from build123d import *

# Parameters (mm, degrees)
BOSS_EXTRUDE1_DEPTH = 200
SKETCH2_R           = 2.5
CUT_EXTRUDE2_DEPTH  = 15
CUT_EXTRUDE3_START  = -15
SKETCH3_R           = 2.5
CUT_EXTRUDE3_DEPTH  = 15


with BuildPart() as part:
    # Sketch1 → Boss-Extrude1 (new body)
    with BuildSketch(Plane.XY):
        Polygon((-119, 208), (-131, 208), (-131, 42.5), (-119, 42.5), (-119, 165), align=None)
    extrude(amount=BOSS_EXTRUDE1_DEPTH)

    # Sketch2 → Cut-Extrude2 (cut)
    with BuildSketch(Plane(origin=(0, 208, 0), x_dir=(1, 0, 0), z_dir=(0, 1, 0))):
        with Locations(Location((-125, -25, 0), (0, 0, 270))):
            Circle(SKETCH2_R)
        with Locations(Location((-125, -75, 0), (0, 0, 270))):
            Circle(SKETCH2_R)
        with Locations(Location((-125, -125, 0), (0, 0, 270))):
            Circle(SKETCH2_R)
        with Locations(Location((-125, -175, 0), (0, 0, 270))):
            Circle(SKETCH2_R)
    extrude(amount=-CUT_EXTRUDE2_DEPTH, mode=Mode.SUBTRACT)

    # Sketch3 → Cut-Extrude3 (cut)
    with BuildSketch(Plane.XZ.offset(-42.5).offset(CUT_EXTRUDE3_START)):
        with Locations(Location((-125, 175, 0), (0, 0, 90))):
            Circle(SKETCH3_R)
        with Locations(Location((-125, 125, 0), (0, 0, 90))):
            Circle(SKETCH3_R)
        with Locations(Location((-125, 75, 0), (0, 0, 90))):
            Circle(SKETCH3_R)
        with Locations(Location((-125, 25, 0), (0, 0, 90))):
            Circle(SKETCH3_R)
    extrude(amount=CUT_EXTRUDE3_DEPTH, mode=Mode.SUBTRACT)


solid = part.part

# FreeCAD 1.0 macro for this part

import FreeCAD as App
import Part
import Sketcher
from FreeCAD import Vector
Q = App.Units.Quantity


def add_polygon(sketch, points):
    """Adds a closed chain of lines whose ends are joined by coincident constraints."""
    first, n = sketch.GeometryCount, len(points)
    for a, b in zip(points, points[1:] + points[:1]):
        sketch.addGeometry(Part.LineSegment(App.Vector(*a, 0), App.Vector(*b, 0)), False)
    for i in range(n):
        sketch.addConstraint(Sketcher.Constraint("Coincident", first + i, 2, first + (i + 1) % n, 1))

doc = App.newDocument("Part")
body = doc.addObject("PartDesign::Body", "Body")

# Sketch on XY plane
sketch1 = body.newObject("Sketcher::SketchObject", "Sketch")
sketch1.AttachmentSupport = (doc.getObject("XY_Plane"), [""])
sketch1.MapMode = "FlatFace"
add_polygon(sketch1, [(-119, 208), (-131, 208), (-131, 42.5), (-119, 42.5)])  # lines 0-3
sketch1.addConstraint(Sketcher.Constraint("Horizontal", 0))
sketch1.addConstraint(Sketcher.Constraint("Vertical", 1))
sketch1.addConstraint(Sketcher.Constraint("Horizontal", 2))
sketch1.addConstraint(Sketcher.Constraint("Vertical", 3))
sketch1.addConstraint(Sketcher.Constraint("DistanceX", 0, 2, 0, 1, Q("12 mm")))
sketch1.addConstraint(Sketcher.Constraint("DistanceY", 1, 2, 1, 1, Q("165.5 mm")))
sketch1.addConstraint(Sketcher.Constraint("DistanceX", 0, 2, -1, 1, Q("131 mm")))
sketch1.addConstraint(Sketcher.Constraint("DistanceY", -1, 1, 0, 2, Q("208 mm")))
pad1 = body.newObject("PartDesign::Pad", "Pad")
pad1.Profile = sketch1
pad1.Length = 200

# Sketch on XZ plane
sketch2 = body.newObject("Sketcher::SketchObject", "Sketch001")
sketch2.AttachmentSupport = (doc.getObject("XZ_Plane"), [""])
sketch2.MapMode = "FlatFace"
sketch2.AttachmentOffset = App.Placement(Vector(0, 0, -208), App.Rotation())
sketch2.addGeometry(Part.Circle(Vector(-125, 25, 0), Vector(0, 0, 1), 2.5), False)
sketch2.addGeometry(Part.Circle(Vector(-125, 75, 0), Vector(0, 0, 1), 2.5), False)
sketch2.addGeometry(Part.Circle(Vector(-125, 125, 0), Vector(0, 0, 1), 2.5), False)
sketch2.addGeometry(Part.Circle(Vector(-125, 175, 0), Vector(0, 0, 1), 2.5), False)
sketch2.addConstraint(Sketcher.Constraint("Equal", 0, 1))
sketch2.addConstraint(Sketcher.Constraint("Equal", 1, 2))
sketch2.addConstraint(Sketcher.Constraint("Equal", 2, 3))
sketch2.addConstraint(Sketcher.Constraint("Vertical", 0, 3, 1, 3))
sketch2.addConstraint(Sketcher.Constraint("Vertical", 1, 3, 2, 3))
sketch2.addConstraint(Sketcher.Constraint("Vertical", 2, 3, 3, 3))
sketch2.addConstraint(Sketcher.Constraint("Diameter", 0, Q("5 mm")))
sketch2.addConstraint(Sketcher.Constraint("DistanceX", 0, 3, -1, 1, Q("125 mm")))
sketch2.addConstraint(Sketcher.Constraint("DistanceY", -1, 1, 0, 3, Q("25 mm")))
sketch2.addConstraint(Sketcher.Constraint("DistanceY", -1, 1, 1, 3, Q("75 mm")))
sketch2.addConstraint(Sketcher.Constraint("DistanceY", -1, 1, 2, 3, Q("125 mm")))
sketch2.addConstraint(Sketcher.Constraint("DistanceY", -1, 1, 3, 3, Q("175 mm")))
pocket1 = body.newObject("PartDesign::Pocket", "Pocket")
pocket1.Profile = sketch2
pocket1.Length = 15
pocket1.Reversed = True

# Sketch on XZ plane
sketch3 = body.newObject("Sketcher::SketchObject", "Sketch002")
sketch3.AttachmentSupport = (doc.getObject("XZ_Plane"), [""])
sketch3.MapMode = "FlatFace"
sketch3.AttachmentOffset = App.Placement(Vector(0, 0, -57.5), App.Rotation())
sketch3.addGeometry(Part.Circle(Vector(-125, 175, 0), Vector(0, 0, 1), 2.5), False)
sketch3.addGeometry(Part.Circle(Vector(-125, 125, 0), Vector(0, 0, 1), 2.5), False)
sketch3.addGeometry(Part.Circle(Vector(-125, 75, 0), Vector(0, 0, 1), 2.5), False)
sketch3.addGeometry(Part.Circle(Vector(-125, 25, 0), Vector(0, 0, 1), 2.5), False)
sketch3.addConstraint(Sketcher.Constraint("Equal", 0, 1))
sketch3.addConstraint(Sketcher.Constraint("Equal", 1, 2))
sketch3.addConstraint(Sketcher.Constraint("Equal", 2, 3))
sketch3.addConstraint(Sketcher.Constraint("Vertical", 0, 3, 1, 3))
sketch3.addConstraint(Sketcher.Constraint("Vertical", 1, 3, 2, 3))
sketch3.addConstraint(Sketcher.Constraint("Vertical", 2, 3, 3, 3))
sketch3.addConstraint(Sketcher.Constraint("Diameter", 0, Q("5 mm")))
sketch3.addConstraint(Sketcher.Constraint("DistanceX", 0, 3, -1, 1, Q("125 mm")))
sketch3.addConstraint(Sketcher.Constraint("DistanceY", -1, 1, 0, 3, Q("175 mm")))
sketch3.addConstraint(Sketcher.Constraint("DistanceY", -1, 1, 1, 3, Q("125 mm")))
sketch3.addConstraint(Sketcher.Constraint("DistanceY", -1, 1, 2, 3, Q("75 mm")))
sketch3.addConstraint(Sketcher.Constraint("DistanceY", -1, 1, 3, 3, Q("25 mm")))
pocket2 = body.newObject("PartDesign::Pocket", "Pocket001")
pocket2.Profile = sketch3
pocket2.Length = 15
pocket2.Reversed = True

doc.recompute()
